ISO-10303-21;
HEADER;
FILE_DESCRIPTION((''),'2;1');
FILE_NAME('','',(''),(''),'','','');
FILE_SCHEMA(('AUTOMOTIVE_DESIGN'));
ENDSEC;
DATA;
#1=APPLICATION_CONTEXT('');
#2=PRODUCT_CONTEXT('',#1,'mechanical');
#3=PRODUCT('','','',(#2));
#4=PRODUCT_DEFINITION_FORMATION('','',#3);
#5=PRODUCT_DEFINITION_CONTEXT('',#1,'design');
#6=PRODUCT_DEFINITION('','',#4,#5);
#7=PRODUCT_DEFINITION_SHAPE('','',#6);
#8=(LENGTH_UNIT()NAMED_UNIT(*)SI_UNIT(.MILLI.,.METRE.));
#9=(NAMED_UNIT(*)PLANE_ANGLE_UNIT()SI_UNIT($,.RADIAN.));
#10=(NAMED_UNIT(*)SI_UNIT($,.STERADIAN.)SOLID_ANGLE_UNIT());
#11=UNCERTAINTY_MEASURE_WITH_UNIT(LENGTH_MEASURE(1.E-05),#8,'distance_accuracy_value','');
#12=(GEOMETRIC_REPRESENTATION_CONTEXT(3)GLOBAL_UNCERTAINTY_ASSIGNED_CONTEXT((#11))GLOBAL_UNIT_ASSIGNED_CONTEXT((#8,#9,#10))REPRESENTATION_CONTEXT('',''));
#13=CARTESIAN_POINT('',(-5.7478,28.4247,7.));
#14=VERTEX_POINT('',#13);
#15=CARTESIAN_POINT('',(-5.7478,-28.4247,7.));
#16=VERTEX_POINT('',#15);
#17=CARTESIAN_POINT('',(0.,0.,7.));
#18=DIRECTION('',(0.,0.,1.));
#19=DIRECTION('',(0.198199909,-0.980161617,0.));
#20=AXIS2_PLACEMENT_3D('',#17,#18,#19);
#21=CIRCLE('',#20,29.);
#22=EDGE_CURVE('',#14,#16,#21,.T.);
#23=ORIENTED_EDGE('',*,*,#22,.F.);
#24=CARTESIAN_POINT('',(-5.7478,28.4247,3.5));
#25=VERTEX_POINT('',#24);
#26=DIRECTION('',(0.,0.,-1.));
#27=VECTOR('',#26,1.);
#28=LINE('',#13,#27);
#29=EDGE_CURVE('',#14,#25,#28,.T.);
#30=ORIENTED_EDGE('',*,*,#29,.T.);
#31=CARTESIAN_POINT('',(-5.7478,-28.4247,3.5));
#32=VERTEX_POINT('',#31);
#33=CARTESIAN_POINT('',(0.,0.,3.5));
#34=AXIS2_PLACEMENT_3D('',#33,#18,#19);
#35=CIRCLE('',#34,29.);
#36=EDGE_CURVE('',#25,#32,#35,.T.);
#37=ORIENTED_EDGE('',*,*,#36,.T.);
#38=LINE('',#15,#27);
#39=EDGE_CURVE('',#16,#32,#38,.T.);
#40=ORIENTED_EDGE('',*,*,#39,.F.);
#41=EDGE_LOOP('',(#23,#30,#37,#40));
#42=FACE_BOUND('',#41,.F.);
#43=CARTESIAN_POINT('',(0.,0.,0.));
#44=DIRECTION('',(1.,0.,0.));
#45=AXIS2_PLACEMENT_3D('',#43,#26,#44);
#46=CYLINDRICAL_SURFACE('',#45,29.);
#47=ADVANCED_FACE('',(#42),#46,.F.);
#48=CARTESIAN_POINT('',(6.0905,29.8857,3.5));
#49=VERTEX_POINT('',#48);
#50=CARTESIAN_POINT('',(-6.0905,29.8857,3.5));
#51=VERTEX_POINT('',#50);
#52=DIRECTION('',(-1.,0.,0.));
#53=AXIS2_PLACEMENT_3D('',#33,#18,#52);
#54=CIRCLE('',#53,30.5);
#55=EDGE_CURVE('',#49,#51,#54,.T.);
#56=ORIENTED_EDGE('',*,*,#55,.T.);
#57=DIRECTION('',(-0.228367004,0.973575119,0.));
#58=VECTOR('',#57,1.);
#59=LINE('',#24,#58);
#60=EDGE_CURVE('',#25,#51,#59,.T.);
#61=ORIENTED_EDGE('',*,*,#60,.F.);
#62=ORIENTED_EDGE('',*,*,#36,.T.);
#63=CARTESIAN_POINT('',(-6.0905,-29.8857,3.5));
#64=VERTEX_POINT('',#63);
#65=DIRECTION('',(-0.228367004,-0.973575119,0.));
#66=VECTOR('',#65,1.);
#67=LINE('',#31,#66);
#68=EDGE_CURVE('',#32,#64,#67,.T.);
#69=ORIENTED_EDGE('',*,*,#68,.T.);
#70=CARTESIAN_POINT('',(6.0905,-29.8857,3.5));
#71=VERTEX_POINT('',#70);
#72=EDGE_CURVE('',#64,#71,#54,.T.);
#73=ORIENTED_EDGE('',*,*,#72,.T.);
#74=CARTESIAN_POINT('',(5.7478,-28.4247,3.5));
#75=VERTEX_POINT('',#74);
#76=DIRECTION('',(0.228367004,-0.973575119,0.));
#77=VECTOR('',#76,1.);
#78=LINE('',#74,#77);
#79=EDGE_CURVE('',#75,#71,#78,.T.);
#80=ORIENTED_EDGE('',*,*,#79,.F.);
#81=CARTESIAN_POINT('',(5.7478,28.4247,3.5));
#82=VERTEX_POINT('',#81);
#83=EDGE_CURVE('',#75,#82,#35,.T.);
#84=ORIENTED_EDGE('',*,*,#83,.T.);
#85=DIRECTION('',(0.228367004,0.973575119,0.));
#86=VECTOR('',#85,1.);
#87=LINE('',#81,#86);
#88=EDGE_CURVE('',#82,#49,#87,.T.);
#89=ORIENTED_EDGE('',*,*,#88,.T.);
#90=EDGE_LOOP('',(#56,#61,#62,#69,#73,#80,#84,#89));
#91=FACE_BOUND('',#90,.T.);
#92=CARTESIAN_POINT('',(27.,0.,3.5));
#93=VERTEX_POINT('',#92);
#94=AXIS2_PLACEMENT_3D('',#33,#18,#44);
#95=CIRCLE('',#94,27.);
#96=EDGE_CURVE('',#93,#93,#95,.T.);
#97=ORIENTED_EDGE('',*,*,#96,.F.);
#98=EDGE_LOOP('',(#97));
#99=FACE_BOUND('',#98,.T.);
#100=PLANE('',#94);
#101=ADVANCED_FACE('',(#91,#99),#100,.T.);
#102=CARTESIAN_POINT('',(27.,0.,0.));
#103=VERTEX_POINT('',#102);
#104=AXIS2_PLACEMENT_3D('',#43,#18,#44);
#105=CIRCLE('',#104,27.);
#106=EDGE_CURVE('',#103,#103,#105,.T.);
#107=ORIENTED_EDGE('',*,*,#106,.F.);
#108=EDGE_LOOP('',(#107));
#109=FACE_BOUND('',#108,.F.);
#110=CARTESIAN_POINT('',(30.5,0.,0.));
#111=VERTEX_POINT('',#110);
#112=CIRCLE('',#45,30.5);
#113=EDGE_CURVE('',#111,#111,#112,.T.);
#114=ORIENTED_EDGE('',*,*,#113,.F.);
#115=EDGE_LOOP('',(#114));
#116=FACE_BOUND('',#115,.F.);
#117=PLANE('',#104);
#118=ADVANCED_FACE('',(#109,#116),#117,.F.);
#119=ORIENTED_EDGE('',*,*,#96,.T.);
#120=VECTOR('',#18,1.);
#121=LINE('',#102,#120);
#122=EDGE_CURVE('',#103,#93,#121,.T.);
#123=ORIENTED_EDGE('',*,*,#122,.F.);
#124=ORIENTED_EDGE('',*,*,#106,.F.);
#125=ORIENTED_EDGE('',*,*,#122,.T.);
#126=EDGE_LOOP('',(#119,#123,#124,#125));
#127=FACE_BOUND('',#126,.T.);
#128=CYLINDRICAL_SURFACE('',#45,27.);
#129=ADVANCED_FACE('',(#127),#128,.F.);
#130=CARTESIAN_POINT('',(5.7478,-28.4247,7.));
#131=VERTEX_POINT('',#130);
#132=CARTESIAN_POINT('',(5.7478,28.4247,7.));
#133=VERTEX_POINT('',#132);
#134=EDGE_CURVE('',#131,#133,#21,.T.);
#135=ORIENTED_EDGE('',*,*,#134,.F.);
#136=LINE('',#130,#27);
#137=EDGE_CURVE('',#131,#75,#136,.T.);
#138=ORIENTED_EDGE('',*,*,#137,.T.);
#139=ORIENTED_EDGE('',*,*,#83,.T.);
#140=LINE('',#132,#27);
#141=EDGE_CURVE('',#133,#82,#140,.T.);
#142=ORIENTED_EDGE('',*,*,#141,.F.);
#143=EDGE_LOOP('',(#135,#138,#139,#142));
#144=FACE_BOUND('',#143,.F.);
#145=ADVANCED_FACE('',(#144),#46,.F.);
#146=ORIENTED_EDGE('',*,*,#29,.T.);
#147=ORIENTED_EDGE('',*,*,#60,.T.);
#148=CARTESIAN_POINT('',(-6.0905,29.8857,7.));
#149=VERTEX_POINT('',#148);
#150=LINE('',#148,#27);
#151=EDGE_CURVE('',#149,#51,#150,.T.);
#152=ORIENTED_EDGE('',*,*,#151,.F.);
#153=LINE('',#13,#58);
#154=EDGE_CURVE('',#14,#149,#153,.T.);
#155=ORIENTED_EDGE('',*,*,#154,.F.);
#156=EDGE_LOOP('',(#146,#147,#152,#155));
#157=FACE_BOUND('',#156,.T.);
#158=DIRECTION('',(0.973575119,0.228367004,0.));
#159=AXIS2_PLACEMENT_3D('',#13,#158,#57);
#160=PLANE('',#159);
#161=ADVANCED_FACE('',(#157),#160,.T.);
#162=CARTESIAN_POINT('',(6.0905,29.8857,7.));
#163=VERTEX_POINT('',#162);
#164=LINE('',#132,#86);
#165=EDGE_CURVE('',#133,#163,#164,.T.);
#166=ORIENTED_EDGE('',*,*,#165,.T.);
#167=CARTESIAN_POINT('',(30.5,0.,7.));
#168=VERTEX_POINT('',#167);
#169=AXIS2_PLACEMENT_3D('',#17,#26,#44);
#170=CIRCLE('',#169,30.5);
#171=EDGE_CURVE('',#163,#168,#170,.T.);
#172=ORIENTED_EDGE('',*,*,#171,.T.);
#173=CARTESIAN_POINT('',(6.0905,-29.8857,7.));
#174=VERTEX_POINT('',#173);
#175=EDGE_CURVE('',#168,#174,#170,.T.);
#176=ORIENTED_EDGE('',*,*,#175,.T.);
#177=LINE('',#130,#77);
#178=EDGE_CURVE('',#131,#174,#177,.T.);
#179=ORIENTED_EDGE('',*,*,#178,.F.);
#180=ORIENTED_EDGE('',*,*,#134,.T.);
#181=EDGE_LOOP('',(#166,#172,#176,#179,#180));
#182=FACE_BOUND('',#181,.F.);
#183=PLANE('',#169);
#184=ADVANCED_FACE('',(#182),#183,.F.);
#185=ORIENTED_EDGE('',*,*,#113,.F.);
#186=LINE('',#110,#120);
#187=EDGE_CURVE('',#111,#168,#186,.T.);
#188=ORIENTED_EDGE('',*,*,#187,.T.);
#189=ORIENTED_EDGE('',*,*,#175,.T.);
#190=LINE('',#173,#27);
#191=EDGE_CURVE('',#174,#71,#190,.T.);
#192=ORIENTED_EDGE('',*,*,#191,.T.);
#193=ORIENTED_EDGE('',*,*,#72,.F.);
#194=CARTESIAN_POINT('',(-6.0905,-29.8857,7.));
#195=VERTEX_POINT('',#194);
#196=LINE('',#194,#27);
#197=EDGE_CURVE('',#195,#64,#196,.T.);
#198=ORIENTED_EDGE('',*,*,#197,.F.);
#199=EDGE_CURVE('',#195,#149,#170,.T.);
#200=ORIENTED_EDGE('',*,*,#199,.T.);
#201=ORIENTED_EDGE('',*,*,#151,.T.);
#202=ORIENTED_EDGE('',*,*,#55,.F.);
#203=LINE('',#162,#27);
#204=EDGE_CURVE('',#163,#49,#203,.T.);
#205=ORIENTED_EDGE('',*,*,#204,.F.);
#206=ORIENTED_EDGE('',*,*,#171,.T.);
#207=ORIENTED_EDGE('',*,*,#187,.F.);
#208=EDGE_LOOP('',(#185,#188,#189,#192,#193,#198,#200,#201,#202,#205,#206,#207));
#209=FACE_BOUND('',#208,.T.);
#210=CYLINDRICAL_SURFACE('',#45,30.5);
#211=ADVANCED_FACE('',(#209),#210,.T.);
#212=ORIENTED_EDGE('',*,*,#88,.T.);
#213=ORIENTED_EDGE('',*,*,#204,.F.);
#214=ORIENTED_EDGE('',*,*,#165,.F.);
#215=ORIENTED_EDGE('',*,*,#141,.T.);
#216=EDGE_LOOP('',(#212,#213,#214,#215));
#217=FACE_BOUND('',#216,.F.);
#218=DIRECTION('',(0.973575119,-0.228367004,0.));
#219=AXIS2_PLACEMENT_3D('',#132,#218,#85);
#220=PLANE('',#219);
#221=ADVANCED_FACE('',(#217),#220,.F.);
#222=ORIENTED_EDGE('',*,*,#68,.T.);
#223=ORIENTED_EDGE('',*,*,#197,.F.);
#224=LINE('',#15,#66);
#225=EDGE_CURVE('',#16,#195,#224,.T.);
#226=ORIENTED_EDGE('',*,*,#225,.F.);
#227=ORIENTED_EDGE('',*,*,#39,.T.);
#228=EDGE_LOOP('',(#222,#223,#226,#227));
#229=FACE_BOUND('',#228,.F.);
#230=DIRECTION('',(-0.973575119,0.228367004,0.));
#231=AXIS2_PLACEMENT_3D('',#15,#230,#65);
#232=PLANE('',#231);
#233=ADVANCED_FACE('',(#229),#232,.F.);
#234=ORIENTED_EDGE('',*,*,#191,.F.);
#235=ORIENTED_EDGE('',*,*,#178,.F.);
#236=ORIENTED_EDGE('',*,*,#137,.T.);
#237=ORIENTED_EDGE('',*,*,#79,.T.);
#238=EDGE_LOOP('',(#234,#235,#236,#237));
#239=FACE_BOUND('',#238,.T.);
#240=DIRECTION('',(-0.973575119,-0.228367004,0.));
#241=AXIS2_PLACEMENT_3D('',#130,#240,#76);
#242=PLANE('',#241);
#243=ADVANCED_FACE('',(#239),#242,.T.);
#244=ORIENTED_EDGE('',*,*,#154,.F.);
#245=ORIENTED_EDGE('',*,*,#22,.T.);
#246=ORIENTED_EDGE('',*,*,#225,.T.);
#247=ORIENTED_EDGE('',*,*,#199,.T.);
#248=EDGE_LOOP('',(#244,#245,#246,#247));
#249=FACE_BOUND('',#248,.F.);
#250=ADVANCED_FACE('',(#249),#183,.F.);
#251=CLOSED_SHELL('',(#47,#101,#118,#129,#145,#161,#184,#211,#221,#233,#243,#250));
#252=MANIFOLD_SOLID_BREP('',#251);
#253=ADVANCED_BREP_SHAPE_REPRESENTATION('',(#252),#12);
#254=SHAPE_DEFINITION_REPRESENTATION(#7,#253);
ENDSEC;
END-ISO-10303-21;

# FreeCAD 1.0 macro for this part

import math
import FreeCAD as App
import Part
import Sketcher
from FreeCAD import Vector
Q = App.Units.Quantity

doc = App.newDocument("Part")
body = doc.addObject("PartDesign::Body", "Body")

sketch1 = body.newObject("Sketcher::SketchObject", "Sketch")
sketch1.AttachmentSupport = (doc.getObject("XY_Plane"), [""])
sketch1.MapMode = "FlatFace"
sketch1.addGeometry([
    Part.Circle(Vector(0, 0, 0), Vector(0, 0, 1), 29),
    Part.Circle(Vector(0, 0, 0), Vector(0, 0, 1), 27),
], False)
sketch1.addConstraint([
    Sketcher.Constraint("Coincident", 0, 3, -1, 1),
    Sketcher.Constraint("Coincident", 1, 3, -1, 1),
    Sketcher.Constraint("Diameter", 0, Q("58 mm")),
    Sketcher.Constraint("Diameter", 1, Q("54 mm")),
])
pad1 = body.newObject("PartDesign::Pad", "Pad")
pad1.Profile = sketch1
pad1.Length = 3.5

sketch2 = body.newObject("Sketcher::SketchObject", "Sketch001")
sketch2.AttachmentSupport = (doc.getObject("XY_Plane"), [""])
sketch2.MapMode = "FlatFace"
sketch2.addGeometry([
    Part.Circle(Vector(0, 0, 0), Vector(0, 0, 1), 30.5),
    Part.Circle(Vector(0, 0, 0), Vector(0, 0, 1), 29),
], False)
sketch2.addConstraint([
    Sketcher.Constraint("Coincident", 0, 3, -1, 1),
    Sketcher.Constraint("Coincident", 1, 3, -1, 1),
    Sketcher.Constraint("Diameter", 0, Q("61 mm")),
    Sketcher.Constraint("Diameter", 1, Q("58 mm")),
])
pad2 = body.newObject("PartDesign::Pad", "Pad001")
pad2.Profile = sketch2
pad2.Length = 7

sketch3 = body.newObject("Sketcher::SketchObject", "Sketch002")
sketch3.AttachmentSupport = (doc.getObject("XY_Plane"), [""])
sketch3.MapMode = "FlatFace"
sketch3.AttachmentOffset = App.Placement(Vector(0, 0, 7), App.Rotation())
sketch3.addGeometry([
    Part.ArcOfCircle(Part.Circle(Vector(0, 0, 0), Vector(0, 0, 1), 29), math.radians(-101.431714), math.radians(-78.568286)),
    Part.LineSegment(Vector(-5.7478, -28.4247, 0), Vector(-6.0905, -29.8857, 0)),
    Part.ArcOfCircle(Part.Circle(Vector(0, 0, 0), Vector(0, 0, 1), 30.5), math.radians(-101.51875), math.radians(-78.48125)),
    Part.LineSegment(Vector(6.0905, -29.8857, 0), Vector(5.7478, -28.4247, 0)),
], False)
sketch3.addConstraint([
    Sketcher.Constraint("Coincident", 0, 1, 1, 1),
    Sketcher.Constraint("Coincident", 1, 2, 2, 1),
    Sketcher.Constraint("Coincident", 2, 2, 3, 1),
    Sketcher.Constraint("Coincident", 3, 2, 0, 2),
    Sketcher.Constraint("Coincident", 0, 3, -1, 1),
    Sketcher.Constraint("Coincident", 2, 3, -1, 1),
    Sketcher.Constraint("Horizontal", 1, 2, 2, 2),
    Sketcher.Constraint("Horizontal", 0, 1, 3, 2),
    Sketcher.Constraint("Radius", 0, Q("29 mm")),
    Sketcher.Constraint("Radius", 2, Q("30.5 mm")),
    Sketcher.Constraint("Angle", 1, Q("-103.201 deg")),
    Sketcher.Constraint("DistanceX", 1, 2, 2, 2, Q("12.181 mm")),
])
pocket1 = body.newObject("PartDesign::Pocket", "Pocket")
pocket1.Profile = sketch3
pocket1.Length = 3.5

sketch4 = body.newObject("Sketcher::SketchObject", "Sketch003")
sketch4.AttachmentSupport = (doc.getObject("XY_Plane"), [""])
sketch4.MapMode = "FlatFace"
sketch4.AttachmentOffset = App.Placement(Vector(0, 0, 7), App.Rotation())
sketch4.addGeometry([
    Part.LineSegment(Vector(-6.0905, 29.8857, 0), Vector(-5.7478, 28.4247, 0)),
    Part.ArcOfCircle(Part.Circle(Vector(0, 0, 0), Vector(0, 0, 1), 29), math.radians(78.568286), math.radians(101.431714)),
    Part.LineSegment(Vector(5.7478, 28.4247, 0), Vector(6.0905, 29.8857, 0)),
    Part.ArcOfCircle(Part.Circle(Vector(0, 0, 0), Vector(0, 0, 1), 30.5), math.radians(78.48125), math.radians(101.51875)),
], False)
sketch4.addConstraint([
    Sketcher.Constraint("Coincident", 0, 2, 1, 2),
    Sketcher.Constraint("Coincident", 1, 1, 2, 1),
    Sketcher.Constraint("Coincident", 2, 2, 3, 1),
    Sketcher.Constraint("Coincident", 3, 2, 0, 1),
    Sketcher.Constraint("Coincident", 1, 3, -1, 1),
    Sketcher.Constraint("Coincident", 3, 3, -1, 1),
    Sketcher.Constraint("Horizontal", 0, 2, 1, 1),
    Sketcher.Constraint("Horizontal", 2, 2, 3, 2),
    Sketcher.Constraint("Radius", 1, Q("29 mm")),
    Sketcher.Constraint("Radius", 3, Q("30.5 mm")),
    Sketcher.Constraint("Angle", 0, Q("-76.799 deg")),
    Sketcher.Constraint("DistanceX", 3, 2, 2, 2, Q("12.181 mm")),
])
pocket2 = body.newObject("PartDesign::Pocket", "Pocket001")
pocket2.Profile = sketch4
pocket2.Length = 3.5

doc.recompute()
